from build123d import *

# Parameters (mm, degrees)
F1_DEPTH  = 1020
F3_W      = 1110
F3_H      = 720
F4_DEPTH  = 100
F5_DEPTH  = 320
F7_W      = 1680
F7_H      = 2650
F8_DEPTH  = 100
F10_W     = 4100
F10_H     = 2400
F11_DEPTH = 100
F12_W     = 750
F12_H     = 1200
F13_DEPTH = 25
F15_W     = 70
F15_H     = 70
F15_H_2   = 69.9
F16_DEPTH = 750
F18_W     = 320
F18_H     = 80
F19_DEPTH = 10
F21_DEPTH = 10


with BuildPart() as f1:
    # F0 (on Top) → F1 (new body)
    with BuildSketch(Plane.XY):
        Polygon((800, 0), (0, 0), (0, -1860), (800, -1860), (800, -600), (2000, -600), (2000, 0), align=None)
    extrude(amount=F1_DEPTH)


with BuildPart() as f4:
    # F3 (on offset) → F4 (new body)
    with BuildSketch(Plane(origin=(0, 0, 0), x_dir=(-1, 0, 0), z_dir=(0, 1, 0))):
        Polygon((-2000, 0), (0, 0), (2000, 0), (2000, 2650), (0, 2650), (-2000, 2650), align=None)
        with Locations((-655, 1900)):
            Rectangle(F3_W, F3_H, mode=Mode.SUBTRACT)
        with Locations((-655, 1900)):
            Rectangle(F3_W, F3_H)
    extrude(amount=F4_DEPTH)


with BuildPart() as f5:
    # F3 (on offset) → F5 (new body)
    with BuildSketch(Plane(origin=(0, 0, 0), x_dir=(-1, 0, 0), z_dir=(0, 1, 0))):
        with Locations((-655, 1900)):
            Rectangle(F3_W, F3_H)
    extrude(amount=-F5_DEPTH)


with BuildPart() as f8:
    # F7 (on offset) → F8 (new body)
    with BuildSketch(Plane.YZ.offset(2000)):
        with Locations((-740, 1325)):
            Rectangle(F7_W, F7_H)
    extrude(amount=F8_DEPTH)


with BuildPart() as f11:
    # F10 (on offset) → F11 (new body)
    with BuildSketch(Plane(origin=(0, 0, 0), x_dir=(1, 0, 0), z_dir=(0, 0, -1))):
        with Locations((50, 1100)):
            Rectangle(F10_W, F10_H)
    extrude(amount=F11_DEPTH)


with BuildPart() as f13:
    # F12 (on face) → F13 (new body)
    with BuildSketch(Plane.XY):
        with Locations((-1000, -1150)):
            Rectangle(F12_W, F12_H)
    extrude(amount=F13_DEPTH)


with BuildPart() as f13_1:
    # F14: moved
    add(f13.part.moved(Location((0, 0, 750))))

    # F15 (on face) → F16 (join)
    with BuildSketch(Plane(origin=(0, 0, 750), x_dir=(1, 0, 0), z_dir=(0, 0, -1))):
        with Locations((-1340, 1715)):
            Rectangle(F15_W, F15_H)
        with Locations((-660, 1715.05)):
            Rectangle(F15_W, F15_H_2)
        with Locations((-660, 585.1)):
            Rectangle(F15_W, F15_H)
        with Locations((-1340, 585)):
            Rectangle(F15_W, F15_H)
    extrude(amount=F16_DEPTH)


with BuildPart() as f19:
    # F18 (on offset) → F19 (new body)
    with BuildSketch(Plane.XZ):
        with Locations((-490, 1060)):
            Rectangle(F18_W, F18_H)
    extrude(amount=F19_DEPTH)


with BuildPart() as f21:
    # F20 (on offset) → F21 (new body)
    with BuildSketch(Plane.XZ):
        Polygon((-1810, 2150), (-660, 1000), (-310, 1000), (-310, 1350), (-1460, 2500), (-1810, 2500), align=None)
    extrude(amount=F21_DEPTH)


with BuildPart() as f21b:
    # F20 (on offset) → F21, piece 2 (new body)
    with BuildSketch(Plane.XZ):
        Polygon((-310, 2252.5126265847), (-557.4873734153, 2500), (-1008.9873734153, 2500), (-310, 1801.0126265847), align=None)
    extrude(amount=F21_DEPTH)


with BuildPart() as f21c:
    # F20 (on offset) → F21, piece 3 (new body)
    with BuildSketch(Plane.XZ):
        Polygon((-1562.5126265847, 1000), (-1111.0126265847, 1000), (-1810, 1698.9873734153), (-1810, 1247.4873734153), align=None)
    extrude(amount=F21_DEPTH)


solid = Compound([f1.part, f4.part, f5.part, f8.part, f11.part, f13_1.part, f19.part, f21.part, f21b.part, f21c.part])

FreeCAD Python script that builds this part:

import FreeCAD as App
import Part
import Sketcher

V = App.Vector
Q = App.Units.Quantity


def add_polygon(sketch, points):
    """Adds a closed chain of lines whose ends are joined by coincident constraints."""
    first, n = sketch.GeometryCount, len(points)
    for a, b in zip(points, points[1:] + points[:1]):
        sketch.addGeometry(Part.LineSegment(App.Vector(*a, 0), App.Vector(*b, 0)), False)
    for i in range(n):
        sketch.addConstraint(Sketcher.Constraint("Coincident", first + i, 2, first + (i + 1) % n, 1))

doc = App.newDocument("Part")
body = doc.addObject("PartDesign::Body", "Body")

sketch1 = body.newObject("Sketcher::SketchObject", "Sketch")
sketch1.AttachmentSupport = (doc.getObject("XY_Plane"), [""])
sketch1.MapMode = "FlatFace"
add_polygon(sketch1, [(0, 0), (0, -1860), (800, -1860), (800, -600), (2000, -600), (2000, 0)])
sketch1.addConstraint([
    Sketcher.Constraint("Vertical", 0),
    Sketcher.Constraint("Horizontal", 1),
    Sketcher.Constraint("Vertical", 2),
    Sketcher.Constraint("Horizontal", 3),
    Sketcher.Constraint("Vertical", 4),
    Sketcher.Constraint("Horizontal", 5),
    Sketcher.Constraint("Coincident", 5, 2, -1, 1),
    Sketcher.Constraint("DistanceX", 1, 1, 1, 2, 800.0),
    Sketcher.Constraint("DistanceX", 3, 1, 3, 2, 1200.0),
    Sketcher.Constraint("DistanceY", 0, 2, 0, 1, 1860.0),
    Sketcher.Constraint("DistanceY", 2, 1, 2, 2, 1260.0),
])
pad1 = body.newObject("PartDesign::Pad", "Pad")
pad1.Profile = sketch1
pad1.Length = 1020
body2 = doc.addObject("PartDesign::Body", "Body001")

sketch2 = body2.newObject("Sketcher::SketchObject", "Sketch001")
sketch2.AttachmentSupport = (doc.getObject("XZ_Plane001"), [""])
sketch2.MapMode = "FlatFace"
add_polygon(sketch2, [(2000, 0), (-2000, 0), (-2000, 2650), (2000, 2650)])
sketch2.addConstraint([
    Sketcher.Constraint("Horizontal", 0),
    Sketcher.Constraint("Vertical", 1),
    Sketcher.Constraint("Horizontal", 2),
    Sketcher.Constraint("Vertical", 3),
    Sketcher.Constraint("Symmetric", 0, 2, 3, 2, -1, 1),
    Sketcher.Constraint("DistanceX", 0, 2, 0, 1, 4000.0),
    Sketcher.Constraint("DistanceY", 1, 1, 1, 2, 2650.0),
])
pad2 = body2.newObject("PartDesign::Pad", "Pad001")
pad2.Profile = sketch2
pad2.Length = 100
pad2.Reversed = True
body3 = doc.addObject("PartDesign::Body", "Body002")

sketch3 = body3.newObject("Sketcher::SketchObject", "Sketch002")
sketch3.AttachmentSupport = (doc.getObject("XZ_Plane002"), [""])
sketch3.MapMode = "FlatFace"
add_polygon(sketch3, [(1210, 2260), (1210, 1540), (100, 1540), (100, 2260)])
sketch3.addConstraint([
    Sketcher.Constraint("Vertical", 0),
    Sketcher.Constraint("Horizontal", 1),
    Sketcher.Constraint("Vertical", 2),
    Sketcher.Constraint("Horizontal", 3),
    Sketcher.Constraint("DistanceX", 1, 2, 1, 1, 1110.0),
    Sketcher.Constraint("DistanceY", 0, 2, 0, 1, 720.0),
    Sketcher.Constraint("DistanceX", -1, 1, 0, 2, 1210.0),
    Sketcher.Constraint("DistanceY", -1, 1, 0, 2, 1540.0),
])
pad3 = body3.newObject("PartDesign::Pad", "Pad002")
pad3.Profile = sketch3
pad3.Length = 320
body4 = doc.addObject("PartDesign::Body", "Body003")

sketch4 = body4.newObject("Sketcher::SketchObject", "Sketch003")
sketch4.AttachmentSupport = (doc.getObject("YZ_Plane003"), [""])
sketch4.MapMode = "FlatFace"
sketch4.AttachmentOffset = App.Placement(V(0, 0, 2000), App.Rotation())
add_polygon(sketch4, [(-1580, 2650), (-1580, 0), (100, 0), (100, 2650)])
sketch4.addConstraint([
    Sketcher.Constraint("Vertical", 0),
    Sketcher.Constraint("Horizontal", 1),
    Sketcher.Constraint("Vertical", 2),
    Sketcher.Constraint("Horizontal", 3),
    Sketcher.Constraint("PointOnObject", 0, 2, -1),
    Sketcher.Constraint("DistanceX", 1, 1, 1, 2, 1680.0),
    Sketcher.Constraint("DistanceY", 0, 2, 0, 1, 2650.0),
    Sketcher.Constraint("DistanceX", 0, 2, -1, 1, 1580.0),
])
pad4 = body4.newObject("PartDesign::Pad", "Pad003")
pad4.Profile = sketch4
pad4.Length = 100
body5 = doc.addObject("PartDesign::Body", "Body004")

sketch5 = body5.newObject("Sketcher::SketchObject", "Sketch004")
sketch5.AttachmentSupport = (doc.getObject("XY_Plane004"), [""])
sketch5.MapMode = "FlatFace"
add_polygon(sketch5, [(-2000, -2300), (-2000, 100), (2100, 100), (2100, -2300)])
sketch5.addConstraint([
    Sketcher.Constraint("Vertical", 0),
    Sketcher.Constraint("Horizontal", 1),
    Sketcher.Constraint("Vertical", 2),
    Sketcher.Constraint("Horizontal", 3),
    Sketcher.Constraint("DistanceX", 1, 1, 1, 2, 4100.0),
    Sketcher.Constraint("DistanceY", 0, 1, 0, 2, 2400.0),
    Sketcher.Constraint("DistanceX", 0, 2, -1, 1, 2000.0),
    Sketcher.Constraint("DistanceY", -1, 1, 0, 2, 100.0),
])
pad5 = body5.newObject("PartDesign::Pad", "Pad004")
pad5.Profile = sketch5
pad5.Length = 100
pad5.Reversed = True
body6 = doc.addObject("PartDesign::Body", "Body005")

sketch6 = body6.newObject("Sketcher::SketchObject", "Sketch005")
sketch6.AttachmentSupport = (doc.getObject("XY_Plane005"), [""])
sketch6.MapMode = "FlatFace"
add_polygon(sketch6, [(-1375, -550), (-1375, -1750), (-625, -1750), (-625, -550)])
sketch6.addConstraint([
    Sketcher.Constraint("Vertical", 0),
    Sketcher.Constraint("Horizontal", 1),
    Sketcher.Constraint("Vertical", 2),
    Sketcher.Constraint("Horizontal", 3),
    Sketcher.Constraint("DistanceX", 1, 1, 1, 2, 750.0),
    Sketcher.Constraint("DistanceY", 0, 2, 0, 1, 1200.0),
    Sketcher.Constraint("DistanceX", 0, 2, -1, 1, 1375.0),
    Sketcher.Constraint("DistanceY", 0, 2, -1, 1, 1750.0),
])
pad6 = body6.newObject("PartDesign::Pad", "Pad005")
pad6.Profile = sketch6
pad6.Length = 25
body7 = doc.addObject("PartDesign::Body", "Body006")
doc.recompute()

body6.Placement = App.Placement(V(0, 0, 750), App.Rotation(V(0, 0, 1), 0))
boolean = body7.newObject("PartDesign::Boolean", "Boolean")
boolean.Type = "Fuse"
boolean.addObjects([body6])

sketch7 = body7.newObject("Sketcher::SketchObject", "Sketch006")
sketch7.AttachmentSupport = (doc.getObject("XY_Plane006"), [""])
sketch7.MapMode = "FlatFace"
sketch7.AttachmentOffset = App.Placement(V(0, 0, 750), App.Rotation())
add_polygon(sketch7, [(-1375, -1750), (-1375, -1680), (-1305, -1680), (-1305, -1750)])
add_polygon(sketch7, [(-695, -1750), (-695, -1680), (-625, -1680), (-625, -1750)])
add_polygon(sketch7, [(-695, -620), (-695, -550), (-625, -550), (-625, -620)])
add_polygon(sketch7, [(-1375, -620), (-1375, -550), (-1305, -550), (-1305, -620)])
sketch7.addConstraint([
    Sketcher.Constraint("Vertical", 0),
    Sketcher.Constraint("Horizontal", 1),
    Sketcher.Constraint("Vertical", 2),
    Sketcher.Constraint("Horizontal", 3),
    Sketcher.Constraint("Vertical", 4),
    Sketcher.Constraint("Horizontal", 5),
    Sketcher.Constraint("Vertical", 6),
    Sketcher.Constraint("Horizontal", 7),
    Sketcher.Constraint("Vertical", 8),
    Sketcher.Constraint("Horizontal", 9),
    Sketcher.Constraint("Vertical", 10),
    Sketcher.Constraint("Horizontal", 11),
    Sketcher.Constraint("Vertical", 12),
    Sketcher.Constraint("Horizontal", 13),
    Sketcher.Constraint("Vertical", 14),
    Sketcher.Constraint("Horizontal", 15),
    Sketcher.Constraint("Horizontal", 3, 2, 6, 2),
    Sketcher.Constraint("Vertical", 7, 2, 8, 2),
    Sketcher.Constraint("Vertical", 6, 2, 9, 2),
    Sketcher.Constraint("Vertical", 3, 2, 12, 2),
    Sketcher.Constraint("Vertical", 2, 2, 13, 2),
    Sketcher.Constraint("Equal", 3, 5),
    Sketcher.Constraint("Equal", 15, 0),
    Sketcher.Constraint("Equal", 2, 8),
    Sketcher.Constraint("Equal", 10, 12),
    Sketcher.Constraint("DistanceX", 1, 1, 1, 2, 70.0),
    Sketcher.Constraint("DistanceY", 4, 1, 4, 2, 69.9),
    Sketcher.Constraint("DistanceX", 0, 2, -1, 1, 1375.0),
    Sketcher.Constraint("DistanceY", 0, 2, -1, 1, 1680.0),
    Sketcher.Constraint("DistanceX", 4, 2, -1, 1, 695.0),
    Sketcher.Constraint("DistanceY", 12, 2, -1, 1, 550.0),
    Sketcher.Constraint("DistanceY", 4, 2, 8, 2, 1130.0),
])
pad7 = body7.newObject("PartDesign::Pad", "Pad006")
pad7.Profile = sketch7
pad7.Length = 750
pad7.Reversed = True
body8 = doc.addObject("PartDesign::Body", "Body007")

sketch8 = body8.newObject("Sketcher::SketchObject", "Sketch007")
sketch8.AttachmentSupport = (doc.getObject("XZ_Plane007"), [""])
sketch8.MapMode = "FlatFace"
add_polygon(sketch8, [(-650, 1100), (-650, 1020), (-330, 1020), (-330, 1100)])
sketch8.addConstraint([
    Sketcher.Constraint("Vertical", 0),
    Sketcher.Constraint("Horizontal", 1),
    Sketcher.Constraint("Vertical", 2),
    Sketcher.Constraint("Horizontal", 3),
    Sketcher.Constraint("DistanceX", 1, 1, 1, 2, 320.0),
    Sketcher.Constraint("DistanceY", 0, 2, 0, 1, 80.0),
    Sketcher.Constraint("DistanceX", 0, 2, -1, 1, 650.0),
    Sketcher.Constraint("DistanceY", -1, 1, 0, 2, 1020.0),
])
pad8 = body8.newObject("PartDesign::Pad", "Pad007")
pad8.Profile = sketch8
pad8.Length = 10
body9 = doc.addObject("PartDesign::Body", "Body008")

sketch9 = body9.newObject("Sketcher::SketchObject", "Sketch008")
sketch9.AttachmentSupport = (doc.getObject("XZ_Plane008"), [""])
sketch9.MapMode = "FlatFace"
add_polygon(sketch9, [(-1810, 2150), (-660, 1000), (-310, 1000), (-310, 1350), (-1460, 2500), (-1810, 2500)])
sketch9.addConstraint([
    Sketcher.Constraint("Horizontal", 1),
    Sketcher.Constraint("Vertical", 2),
    Sketcher.Constraint("Horizontal", 4),
    Sketcher.Constraint("Vertical", 5),
    Sketcher.Constraint("Parallel", 0, 3),
    Sketcher.Constraint("Equal", 1, 4),
    Sketcher.Constraint("Equal", 4, 2),
    Sketcher.Constraint("DistanceX", 1, 1, 1, 2, 350.0),
    Sketcher.Constraint("Angle", 0, Q("-45 deg")),
    Sketcher.Constraint("DistanceX", 0, 2, -1, 1, 660.0),
    Sketcher.Constraint("DistanceY", -1, 1, 0, 2, 1000.0),
    Sketcher.Constraint("DistanceX", 3, 2, -1, 1, 1460.0),
])
pad9 = body9.newObject("PartDesign::Pad", "Pad008")
pad9.Profile = sketch9
pad9.Length = 10
body10 = doc.addObject("PartDesign::Body", "Body009")

sketch10 = body10.newObject("Sketcher::SketchObject", "Sketch009")
sketch10.AttachmentSupport = (doc.getObject("XZ_Plane009"), [""])
sketch10.MapMode = "FlatFace"
add_polygon(sketch10, [(-310, 2253), (-557, 2500), (-1009, 2500), (-310, 1801)])
sketch10.addConstraint([
    Sketcher.Constraint("Horizontal", 1),
    Sketcher.Constraint("Vertical", 3),
    Sketcher.Constraint("Parallel", 0, 2),
    Sketcher.Constraint("Equal", 1, 3),
    Sketcher.Constraint("Distance", 0, 350.0),
    Sketcher.Constraint("DistanceX", 1, 2, 1, 1, 451.5),
    Sketcher.Constraint("DistanceY", -1, 1, 0, 2, 2500.0),
    Sketcher.Constraint("DistanceX", 2, 2, -1, 1, 310.0),
])
pad10 = body10.newObject("PartDesign::Pad", "Pad009")
pad10.Profile = sketch10
pad10.Length = 10
body11 = doc.addObject("PartDesign::Body", "Body010")

sketch11 = body11.newObject("Sketcher::SketchObject", "Sketch010")
sketch11.AttachmentSupport = (doc.getObject("XZ_Plane010"), [""])
sketch11.MapMode = "FlatFace"
add_polygon(sketch11, [(-1563, 1000), (-1111, 1000), (-1810, 1699), (-1810, 1247)])
sketch11.addConstraint([
    Sketcher.Constraint("Horizontal", 0),
    Sketcher.Constraint("Vertical", 2),
    Sketcher.Constraint("Parallel", 1, 3),
    Sketcher.Constraint("Equal", 0, 2),
    Sketcher.Constraint("Distance", 3, 350.0),
    Sketcher.Constraint("DistanceX", 0, 1, 0, 2, 451.5),
    Sketcher.Constraint("DistanceY", -1, 1, 0, 2, 1000.0),
    Sketcher.Constraint("DistanceX", 1, 2, -1, 1, 1810.0),
])
pad11 = body11.newObject("PartDesign::Pad", "Pad010")
pad11.Profile = sketch11
pad11.Length = 10

doc.recompute()
